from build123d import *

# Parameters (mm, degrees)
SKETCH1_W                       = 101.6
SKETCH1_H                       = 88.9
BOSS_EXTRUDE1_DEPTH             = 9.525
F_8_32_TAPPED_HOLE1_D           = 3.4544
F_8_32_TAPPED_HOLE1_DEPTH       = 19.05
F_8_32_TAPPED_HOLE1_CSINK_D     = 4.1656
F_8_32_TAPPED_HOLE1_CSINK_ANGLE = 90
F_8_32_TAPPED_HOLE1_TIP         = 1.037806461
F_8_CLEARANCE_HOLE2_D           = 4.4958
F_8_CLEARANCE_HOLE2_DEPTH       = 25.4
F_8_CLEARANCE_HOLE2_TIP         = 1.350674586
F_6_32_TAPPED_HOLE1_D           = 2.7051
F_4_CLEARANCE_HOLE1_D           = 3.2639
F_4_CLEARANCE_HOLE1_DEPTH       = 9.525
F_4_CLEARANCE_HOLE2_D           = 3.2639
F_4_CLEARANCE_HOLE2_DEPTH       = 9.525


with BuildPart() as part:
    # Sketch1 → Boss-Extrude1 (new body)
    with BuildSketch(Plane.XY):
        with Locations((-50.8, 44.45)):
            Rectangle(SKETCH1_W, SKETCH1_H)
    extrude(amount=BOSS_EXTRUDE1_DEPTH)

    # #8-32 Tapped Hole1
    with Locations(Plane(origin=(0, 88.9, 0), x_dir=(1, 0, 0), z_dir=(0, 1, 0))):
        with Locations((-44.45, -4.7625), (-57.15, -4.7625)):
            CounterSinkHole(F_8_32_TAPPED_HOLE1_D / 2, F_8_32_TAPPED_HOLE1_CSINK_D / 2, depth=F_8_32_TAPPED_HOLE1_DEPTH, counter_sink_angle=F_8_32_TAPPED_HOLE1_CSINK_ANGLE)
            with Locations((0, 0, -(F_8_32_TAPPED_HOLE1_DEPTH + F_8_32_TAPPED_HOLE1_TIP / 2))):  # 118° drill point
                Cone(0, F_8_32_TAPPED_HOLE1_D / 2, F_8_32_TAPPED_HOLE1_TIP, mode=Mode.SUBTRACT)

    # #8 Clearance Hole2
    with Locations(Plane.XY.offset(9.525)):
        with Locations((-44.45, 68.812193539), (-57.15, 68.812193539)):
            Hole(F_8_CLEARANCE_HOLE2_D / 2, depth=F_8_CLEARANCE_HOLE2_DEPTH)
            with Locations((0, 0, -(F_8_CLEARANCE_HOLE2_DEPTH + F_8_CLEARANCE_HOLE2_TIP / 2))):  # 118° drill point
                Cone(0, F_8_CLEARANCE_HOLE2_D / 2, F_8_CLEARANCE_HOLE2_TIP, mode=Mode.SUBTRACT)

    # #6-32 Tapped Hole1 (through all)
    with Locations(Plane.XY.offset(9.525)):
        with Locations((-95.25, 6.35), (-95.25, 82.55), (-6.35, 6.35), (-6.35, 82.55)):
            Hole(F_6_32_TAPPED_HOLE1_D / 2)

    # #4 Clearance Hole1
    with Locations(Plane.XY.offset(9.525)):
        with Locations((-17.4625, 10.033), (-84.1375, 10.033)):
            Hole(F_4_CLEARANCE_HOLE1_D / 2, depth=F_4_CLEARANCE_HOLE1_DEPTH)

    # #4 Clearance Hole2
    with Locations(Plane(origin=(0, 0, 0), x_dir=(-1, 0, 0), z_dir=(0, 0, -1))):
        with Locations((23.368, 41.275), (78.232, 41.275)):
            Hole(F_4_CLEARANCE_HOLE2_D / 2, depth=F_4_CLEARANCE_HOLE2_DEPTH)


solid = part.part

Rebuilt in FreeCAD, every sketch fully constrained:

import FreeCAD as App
import Part
import Sketcher
from FreeCAD import Vector
Q = App.Units.Quantity


def add_polygon(sketch, points):
    """Adds a closed chain of lines whose ends are joined by coincident constraints."""
    first, n = sketch.GeometryCount, len(points)
    for a, b in zip(points, points[1:] + points[:1]):
        sketch.addGeometry(Part.LineSegment(App.Vector(*a, 0), App.Vector(*b, 0)), False)
    for i in range(n):
        sketch.addConstraint(Sketcher.Constraint("Coincident", first + i, 2, first + (i + 1) % n, 1))

doc = App.newDocument("Part")
body = doc.addObject("PartDesign::Body", "Body")

# Sketch on XY plane
sketch1 = body.newObject("Sketcher::SketchObject", "Sketch")
sketch1.AttachmentSupport = (doc.getObject("XY_Plane"), [""])
sketch1.MapMode = "FlatFace"
add_polygon(sketch1, [(-102, 89), (-102, 0), (0, 0), (0, 89)])  # lines 0-3
sketch1.addConstraint(Sketcher.Constraint("Vertical", 0))
sketch1.addConstraint(Sketcher.Constraint("Horizontal", 1))
sketch1.addConstraint(Sketcher.Constraint("Vertical", 2))
sketch1.addConstraint(Sketcher.Constraint("Horizontal", 3))
sketch1.addConstraint(Sketcher.Constraint("Coincident", 1, 2, -1, 1))
sketch1.addConstraint(Sketcher.Constraint("DistanceX", 1, 1, 1, 2, Q("4 in")))
sketch1.addConstraint(Sketcher.Constraint("DistanceY", 0, 2, 0, 1, Q("3.5 in")))
pad1 = body.newObject("PartDesign::Pad", "Pad")
pad1.Profile = sketch1
pad1.Length = Q("0.375 in")

# Sketch on XZ plane
sketch2 = body.newObject("Sketcher::SketchObject", "Sketch001")
sketch2.AttachmentSupport = (doc.getObject("XZ_Plane"), [""])
sketch2.MapMode = "FlatFace"
sketch2.AttachmentOffset = App.Placement(Vector(0, 0, -3.5 * 25.4), App.Rotation())
sketch2.addGeometry(Part.Circle(Vector(-44.5, 4.8, 0), Vector(0, 0, 1), 1.7), False)
sketch2.addGeometry(Part.Circle(Vector(-57.1, 4.8, 0), Vector(0, 0, 1), 1.7), False)
sketch2.addConstraint(Sketcher.Constraint("Equal", 0, 1))
sketch2.addConstraint(Sketcher.Constraint("Horizontal", 0, 3, 1, 3))
sketch2.addConstraint(Sketcher.Constraint("Diameter", 0, Q("0.136 in")))
sketch2.addConstraint(Sketcher.Constraint("DistanceX", 1, 3, 0, 3, Q("0.5 in")))
sketch2.addConstraint(Sketcher.Constraint("DistanceX", 0, 3, -1, 1, Q("1.75 in")))
sketch2.addConstraint(Sketcher.Constraint("DistanceY", -1, 1, 0, 3, Q("0.1875 in")))
doc.recompute()
hole = body.newObject("PartDesign::Hole", "Hole")
hole.Profile = sketch2
hole.ThreadType = "None"
hole.Diameter = Q("0.136 in")
hole.DepthType = "Dimension"
hole.Depth = Q("0.75 in")
hole.DrillPoint = "Angled"
hole.DrillPointAngle = 118
hole.HoleCutType = "Countersink"
hole.HoleCutDiameter = Q("0.164 in")
hole.HoleCutCountersinkAngle = 90
hole.Reversed = True

# Sketch on XY plane
sketch3 = body.newObject("Sketcher::SketchObject", "Sketch002")
sketch3.AttachmentSupport = (doc.getObject("XY_Plane"), [""])
sketch3.MapMode = "FlatFace"
sketch3.AttachmentOffset = App.Placement(Vector(0, 0, 0.375 * 25.4), App.Rotation())
sketch3.addGeometry(Part.Circle(Vector(-44.5, 68.8, 0), Vector(0, 0, 1), 2.2), False)
sketch3.addGeometry(Part.Circle(Vector(-57.1, 68.8, 0), Vector(0, 0, 1), 2.2), False)
sketch3.addConstraint(Sketcher.Constraint("Equal", 0, 1))
sketch3.addConstraint(Sketcher.Constraint("Horizontal", 0, 3, 1, 3))
sketch3.addConstraint(Sketcher.Constraint("Diameter", 0, Q("0.177 in")))
sketch3.addConstraint(Sketcher.Constraint("DistanceX", 1, 3, 0, 3, Q("0.5 in")))
sketch3.addConstraint(Sketcher.Constraint("DistanceX", 0, 3, -1, 1, Q("1.75 in")))
sketch3.addConstraint(Sketcher.Constraint("DistanceY", -1, 1, 0, 3, 68.812194))
doc.recompute()
hole2 = body.newObject("PartDesign::Hole", "Hole001")
hole2.Profile = sketch3
hole2.ThreadType = "None"
hole2.Diameter = Q("0.177 in")
hole2.DepthType = "Dimension"
hole2.Depth = Q("1 in")
hole2.DrillPoint = "Angled"
hole2.DrillPointAngle = 118

# Sketch on XY plane
sketch4 = body.newObject("Sketcher::SketchObject", "Sketch003")
sketch4.AttachmentSupport = (doc.getObject("XY_Plane"), [""])
sketch4.MapMode = "FlatFace"
sketch4.AttachmentOffset = App.Placement(Vector(0, 0, 0.375 * 25.4), App.Rotation())
sketch4.addGeometry(Part.Circle(Vector(-95.2, 6.3, 0), Vector(0, 0, 1), 1.4), False)
sketch4.addGeometry(Part.Circle(Vector(-95.2, 82.5, 0), Vector(0, 0, 1), 1.4), False)
sketch4.addGeometry(Part.Circle(Vector(-6.3, 6.3, 0), Vector(0, 0, 1), 1.4), False)
sketch4.addGeometry(Part.Circle(Vector(-6.3, 82.5, 0), Vector(0, 0, 1), 1.4), False)
sketch4.addConstraint(Sketcher.Constraint("Equal", 0, 1))
sketch4.addConstraint(Sketcher.Constraint("Equal", 1, 2))
sketch4.addConstraint(Sketcher.Constraint("Equal", 2, 3))
sketch4.addConstraint(Sketcher.Constraint("Horizontal", 0, 3, 2, 3))
sketch4.addConstraint(Sketcher.Constraint("Horizontal", 1, 3, 3, 3))
sketch4.addConstraint(Sketcher.Constraint("Vertical", 0, 3, 1, 3))
sketch4.addConstraint(Sketcher.Constraint("Vertical", 2, 3, 3, 3))
sketch4.addConstraint(Sketcher.Constraint("DistanceY", 0, 3, 1, 3, Q("3 in")))
sketch4.addConstraint(Sketcher.Constraint("Diameter", 0, Q("0.1065 in")))
sketch4.addConstraint(Sketcher.Constraint("DistanceX", 0, 3, 2, 3, Q("3.5 in")))
sketch4.addConstraint(Sketcher.Constraint("DistanceX", 0, 3, -1, 1, Q("3.75 in")))
sketch4.addConstraint(Sketcher.Constraint("DistanceY", -1, 1, 0, 3, Q("0.25 in")))
doc.recompute()
hole3 = body.newObject("PartDesign::Hole", "Hole002")
hole3.Profile = sketch4
hole3.ThreadType = "None"
hole3.Diameter = Q("0.1065 in")
hole3.DepthType = "ThroughAll"

# Sketch on XY plane
sketch5 = body.newObject("Sketcher::SketchObject", "Sketch004")
sketch5.AttachmentSupport = (doc.getObject("XY_Plane"), [""])
sketch5.MapMode = "FlatFace"
sketch5.AttachmentOffset = App.Placement(Vector(0, 0, 0.375 * 25.4), App.Rotation())
sketch5.addGeometry(Part.Circle(Vector(-17.5, 10, 0), Vector(0, 0, 1), 1.6), False)
sketch5.addGeometry(Part.Circle(Vector(-84.1, 10, 0), Vector(0, 0, 1), 1.6), False)
sketch5.addConstraint(Sketcher.Constraint("Equal", 0, 1))
sketch5.addConstraint(Sketcher.Constraint("Horizontal", 0, 3, 1, 3))
sketch5.addConstraint(Sketcher.Constraint("Diameter", 0, Q("0.1285 in")))
sketch5.addConstraint(Sketcher.Constraint("DistanceX", 0, 3, -1, 1, Q("0.6875 in")))
sketch5.addConstraint(Sketcher.Constraint("DistanceY", -1, 1, 0, 3, Q("0.395 in")))
sketch5.addConstraint(Sketcher.Constraint("DistanceX", 1, 3, -1, 1, Q("3.3125 in")))
doc.recompute()
hole4 = body.newObject("PartDesign::Hole", "Hole003")
hole4.Profile = sketch5
hole4.ThreadType = "None"
hole4.Diameter = Q("0.1285 in")
hole4.DepthType = "Dimension"
hole4.Depth = Q("0.375 in")
hole4.DrillPoint = "Flat"

# Sketch on XY plane
sketch6 = body.newObject("Sketcher::SketchObject", "Sketch005")
sketch6.AttachmentSupport = (doc.getObject("XY_Plane"), [""])
sketch6.MapMode = "FlatFace"
sketch6.addGeometry(Part.Circle(Vector(-23.4, 41.3, 0), Vector(0, 0, 1), 1.6), False)
sketch6.addGeometry(Part.Circle(Vector(-78.2, 41.3, 0), Vector(0, 0, 1), 1.6), False)
sketch6.addConstraint(Sketcher.Constraint("Equal", 0, 1))
sketch6.addConstraint(Sketcher.Constraint("Horizontal", 0, 3, 1, 3))
sketch6.addConstraint(Sketcher.Constraint("Diameter", 0, Q("0.1285 in")))
sketch6.addConstraint(Sketcher.Constraint("DistanceX", 0, 3, -1, 1, Q("0.92 in")))
sketch6.addConstraint(Sketcher.Constraint("DistanceX", 1, 3, -1, 1, Q("3.08 in")))
sketch6.addConstraint(Sketcher.Constraint("DistanceY", -1, 1, 0, 3, Q("1.625 in")))
doc.recompute()
hole5 = body.newObject("PartDesign::Hole", "Hole004")
hole5.Profile = sketch6
hole5.ThreadType = "None"
hole5.Diameter = Q("0.1285 in")
hole5.DepthType = "Dimension"
hole5.Depth = Q("0.375 in")
hole5.DrillPoint = "Flat"
hole5.Reversed = True

doc.recompute()
